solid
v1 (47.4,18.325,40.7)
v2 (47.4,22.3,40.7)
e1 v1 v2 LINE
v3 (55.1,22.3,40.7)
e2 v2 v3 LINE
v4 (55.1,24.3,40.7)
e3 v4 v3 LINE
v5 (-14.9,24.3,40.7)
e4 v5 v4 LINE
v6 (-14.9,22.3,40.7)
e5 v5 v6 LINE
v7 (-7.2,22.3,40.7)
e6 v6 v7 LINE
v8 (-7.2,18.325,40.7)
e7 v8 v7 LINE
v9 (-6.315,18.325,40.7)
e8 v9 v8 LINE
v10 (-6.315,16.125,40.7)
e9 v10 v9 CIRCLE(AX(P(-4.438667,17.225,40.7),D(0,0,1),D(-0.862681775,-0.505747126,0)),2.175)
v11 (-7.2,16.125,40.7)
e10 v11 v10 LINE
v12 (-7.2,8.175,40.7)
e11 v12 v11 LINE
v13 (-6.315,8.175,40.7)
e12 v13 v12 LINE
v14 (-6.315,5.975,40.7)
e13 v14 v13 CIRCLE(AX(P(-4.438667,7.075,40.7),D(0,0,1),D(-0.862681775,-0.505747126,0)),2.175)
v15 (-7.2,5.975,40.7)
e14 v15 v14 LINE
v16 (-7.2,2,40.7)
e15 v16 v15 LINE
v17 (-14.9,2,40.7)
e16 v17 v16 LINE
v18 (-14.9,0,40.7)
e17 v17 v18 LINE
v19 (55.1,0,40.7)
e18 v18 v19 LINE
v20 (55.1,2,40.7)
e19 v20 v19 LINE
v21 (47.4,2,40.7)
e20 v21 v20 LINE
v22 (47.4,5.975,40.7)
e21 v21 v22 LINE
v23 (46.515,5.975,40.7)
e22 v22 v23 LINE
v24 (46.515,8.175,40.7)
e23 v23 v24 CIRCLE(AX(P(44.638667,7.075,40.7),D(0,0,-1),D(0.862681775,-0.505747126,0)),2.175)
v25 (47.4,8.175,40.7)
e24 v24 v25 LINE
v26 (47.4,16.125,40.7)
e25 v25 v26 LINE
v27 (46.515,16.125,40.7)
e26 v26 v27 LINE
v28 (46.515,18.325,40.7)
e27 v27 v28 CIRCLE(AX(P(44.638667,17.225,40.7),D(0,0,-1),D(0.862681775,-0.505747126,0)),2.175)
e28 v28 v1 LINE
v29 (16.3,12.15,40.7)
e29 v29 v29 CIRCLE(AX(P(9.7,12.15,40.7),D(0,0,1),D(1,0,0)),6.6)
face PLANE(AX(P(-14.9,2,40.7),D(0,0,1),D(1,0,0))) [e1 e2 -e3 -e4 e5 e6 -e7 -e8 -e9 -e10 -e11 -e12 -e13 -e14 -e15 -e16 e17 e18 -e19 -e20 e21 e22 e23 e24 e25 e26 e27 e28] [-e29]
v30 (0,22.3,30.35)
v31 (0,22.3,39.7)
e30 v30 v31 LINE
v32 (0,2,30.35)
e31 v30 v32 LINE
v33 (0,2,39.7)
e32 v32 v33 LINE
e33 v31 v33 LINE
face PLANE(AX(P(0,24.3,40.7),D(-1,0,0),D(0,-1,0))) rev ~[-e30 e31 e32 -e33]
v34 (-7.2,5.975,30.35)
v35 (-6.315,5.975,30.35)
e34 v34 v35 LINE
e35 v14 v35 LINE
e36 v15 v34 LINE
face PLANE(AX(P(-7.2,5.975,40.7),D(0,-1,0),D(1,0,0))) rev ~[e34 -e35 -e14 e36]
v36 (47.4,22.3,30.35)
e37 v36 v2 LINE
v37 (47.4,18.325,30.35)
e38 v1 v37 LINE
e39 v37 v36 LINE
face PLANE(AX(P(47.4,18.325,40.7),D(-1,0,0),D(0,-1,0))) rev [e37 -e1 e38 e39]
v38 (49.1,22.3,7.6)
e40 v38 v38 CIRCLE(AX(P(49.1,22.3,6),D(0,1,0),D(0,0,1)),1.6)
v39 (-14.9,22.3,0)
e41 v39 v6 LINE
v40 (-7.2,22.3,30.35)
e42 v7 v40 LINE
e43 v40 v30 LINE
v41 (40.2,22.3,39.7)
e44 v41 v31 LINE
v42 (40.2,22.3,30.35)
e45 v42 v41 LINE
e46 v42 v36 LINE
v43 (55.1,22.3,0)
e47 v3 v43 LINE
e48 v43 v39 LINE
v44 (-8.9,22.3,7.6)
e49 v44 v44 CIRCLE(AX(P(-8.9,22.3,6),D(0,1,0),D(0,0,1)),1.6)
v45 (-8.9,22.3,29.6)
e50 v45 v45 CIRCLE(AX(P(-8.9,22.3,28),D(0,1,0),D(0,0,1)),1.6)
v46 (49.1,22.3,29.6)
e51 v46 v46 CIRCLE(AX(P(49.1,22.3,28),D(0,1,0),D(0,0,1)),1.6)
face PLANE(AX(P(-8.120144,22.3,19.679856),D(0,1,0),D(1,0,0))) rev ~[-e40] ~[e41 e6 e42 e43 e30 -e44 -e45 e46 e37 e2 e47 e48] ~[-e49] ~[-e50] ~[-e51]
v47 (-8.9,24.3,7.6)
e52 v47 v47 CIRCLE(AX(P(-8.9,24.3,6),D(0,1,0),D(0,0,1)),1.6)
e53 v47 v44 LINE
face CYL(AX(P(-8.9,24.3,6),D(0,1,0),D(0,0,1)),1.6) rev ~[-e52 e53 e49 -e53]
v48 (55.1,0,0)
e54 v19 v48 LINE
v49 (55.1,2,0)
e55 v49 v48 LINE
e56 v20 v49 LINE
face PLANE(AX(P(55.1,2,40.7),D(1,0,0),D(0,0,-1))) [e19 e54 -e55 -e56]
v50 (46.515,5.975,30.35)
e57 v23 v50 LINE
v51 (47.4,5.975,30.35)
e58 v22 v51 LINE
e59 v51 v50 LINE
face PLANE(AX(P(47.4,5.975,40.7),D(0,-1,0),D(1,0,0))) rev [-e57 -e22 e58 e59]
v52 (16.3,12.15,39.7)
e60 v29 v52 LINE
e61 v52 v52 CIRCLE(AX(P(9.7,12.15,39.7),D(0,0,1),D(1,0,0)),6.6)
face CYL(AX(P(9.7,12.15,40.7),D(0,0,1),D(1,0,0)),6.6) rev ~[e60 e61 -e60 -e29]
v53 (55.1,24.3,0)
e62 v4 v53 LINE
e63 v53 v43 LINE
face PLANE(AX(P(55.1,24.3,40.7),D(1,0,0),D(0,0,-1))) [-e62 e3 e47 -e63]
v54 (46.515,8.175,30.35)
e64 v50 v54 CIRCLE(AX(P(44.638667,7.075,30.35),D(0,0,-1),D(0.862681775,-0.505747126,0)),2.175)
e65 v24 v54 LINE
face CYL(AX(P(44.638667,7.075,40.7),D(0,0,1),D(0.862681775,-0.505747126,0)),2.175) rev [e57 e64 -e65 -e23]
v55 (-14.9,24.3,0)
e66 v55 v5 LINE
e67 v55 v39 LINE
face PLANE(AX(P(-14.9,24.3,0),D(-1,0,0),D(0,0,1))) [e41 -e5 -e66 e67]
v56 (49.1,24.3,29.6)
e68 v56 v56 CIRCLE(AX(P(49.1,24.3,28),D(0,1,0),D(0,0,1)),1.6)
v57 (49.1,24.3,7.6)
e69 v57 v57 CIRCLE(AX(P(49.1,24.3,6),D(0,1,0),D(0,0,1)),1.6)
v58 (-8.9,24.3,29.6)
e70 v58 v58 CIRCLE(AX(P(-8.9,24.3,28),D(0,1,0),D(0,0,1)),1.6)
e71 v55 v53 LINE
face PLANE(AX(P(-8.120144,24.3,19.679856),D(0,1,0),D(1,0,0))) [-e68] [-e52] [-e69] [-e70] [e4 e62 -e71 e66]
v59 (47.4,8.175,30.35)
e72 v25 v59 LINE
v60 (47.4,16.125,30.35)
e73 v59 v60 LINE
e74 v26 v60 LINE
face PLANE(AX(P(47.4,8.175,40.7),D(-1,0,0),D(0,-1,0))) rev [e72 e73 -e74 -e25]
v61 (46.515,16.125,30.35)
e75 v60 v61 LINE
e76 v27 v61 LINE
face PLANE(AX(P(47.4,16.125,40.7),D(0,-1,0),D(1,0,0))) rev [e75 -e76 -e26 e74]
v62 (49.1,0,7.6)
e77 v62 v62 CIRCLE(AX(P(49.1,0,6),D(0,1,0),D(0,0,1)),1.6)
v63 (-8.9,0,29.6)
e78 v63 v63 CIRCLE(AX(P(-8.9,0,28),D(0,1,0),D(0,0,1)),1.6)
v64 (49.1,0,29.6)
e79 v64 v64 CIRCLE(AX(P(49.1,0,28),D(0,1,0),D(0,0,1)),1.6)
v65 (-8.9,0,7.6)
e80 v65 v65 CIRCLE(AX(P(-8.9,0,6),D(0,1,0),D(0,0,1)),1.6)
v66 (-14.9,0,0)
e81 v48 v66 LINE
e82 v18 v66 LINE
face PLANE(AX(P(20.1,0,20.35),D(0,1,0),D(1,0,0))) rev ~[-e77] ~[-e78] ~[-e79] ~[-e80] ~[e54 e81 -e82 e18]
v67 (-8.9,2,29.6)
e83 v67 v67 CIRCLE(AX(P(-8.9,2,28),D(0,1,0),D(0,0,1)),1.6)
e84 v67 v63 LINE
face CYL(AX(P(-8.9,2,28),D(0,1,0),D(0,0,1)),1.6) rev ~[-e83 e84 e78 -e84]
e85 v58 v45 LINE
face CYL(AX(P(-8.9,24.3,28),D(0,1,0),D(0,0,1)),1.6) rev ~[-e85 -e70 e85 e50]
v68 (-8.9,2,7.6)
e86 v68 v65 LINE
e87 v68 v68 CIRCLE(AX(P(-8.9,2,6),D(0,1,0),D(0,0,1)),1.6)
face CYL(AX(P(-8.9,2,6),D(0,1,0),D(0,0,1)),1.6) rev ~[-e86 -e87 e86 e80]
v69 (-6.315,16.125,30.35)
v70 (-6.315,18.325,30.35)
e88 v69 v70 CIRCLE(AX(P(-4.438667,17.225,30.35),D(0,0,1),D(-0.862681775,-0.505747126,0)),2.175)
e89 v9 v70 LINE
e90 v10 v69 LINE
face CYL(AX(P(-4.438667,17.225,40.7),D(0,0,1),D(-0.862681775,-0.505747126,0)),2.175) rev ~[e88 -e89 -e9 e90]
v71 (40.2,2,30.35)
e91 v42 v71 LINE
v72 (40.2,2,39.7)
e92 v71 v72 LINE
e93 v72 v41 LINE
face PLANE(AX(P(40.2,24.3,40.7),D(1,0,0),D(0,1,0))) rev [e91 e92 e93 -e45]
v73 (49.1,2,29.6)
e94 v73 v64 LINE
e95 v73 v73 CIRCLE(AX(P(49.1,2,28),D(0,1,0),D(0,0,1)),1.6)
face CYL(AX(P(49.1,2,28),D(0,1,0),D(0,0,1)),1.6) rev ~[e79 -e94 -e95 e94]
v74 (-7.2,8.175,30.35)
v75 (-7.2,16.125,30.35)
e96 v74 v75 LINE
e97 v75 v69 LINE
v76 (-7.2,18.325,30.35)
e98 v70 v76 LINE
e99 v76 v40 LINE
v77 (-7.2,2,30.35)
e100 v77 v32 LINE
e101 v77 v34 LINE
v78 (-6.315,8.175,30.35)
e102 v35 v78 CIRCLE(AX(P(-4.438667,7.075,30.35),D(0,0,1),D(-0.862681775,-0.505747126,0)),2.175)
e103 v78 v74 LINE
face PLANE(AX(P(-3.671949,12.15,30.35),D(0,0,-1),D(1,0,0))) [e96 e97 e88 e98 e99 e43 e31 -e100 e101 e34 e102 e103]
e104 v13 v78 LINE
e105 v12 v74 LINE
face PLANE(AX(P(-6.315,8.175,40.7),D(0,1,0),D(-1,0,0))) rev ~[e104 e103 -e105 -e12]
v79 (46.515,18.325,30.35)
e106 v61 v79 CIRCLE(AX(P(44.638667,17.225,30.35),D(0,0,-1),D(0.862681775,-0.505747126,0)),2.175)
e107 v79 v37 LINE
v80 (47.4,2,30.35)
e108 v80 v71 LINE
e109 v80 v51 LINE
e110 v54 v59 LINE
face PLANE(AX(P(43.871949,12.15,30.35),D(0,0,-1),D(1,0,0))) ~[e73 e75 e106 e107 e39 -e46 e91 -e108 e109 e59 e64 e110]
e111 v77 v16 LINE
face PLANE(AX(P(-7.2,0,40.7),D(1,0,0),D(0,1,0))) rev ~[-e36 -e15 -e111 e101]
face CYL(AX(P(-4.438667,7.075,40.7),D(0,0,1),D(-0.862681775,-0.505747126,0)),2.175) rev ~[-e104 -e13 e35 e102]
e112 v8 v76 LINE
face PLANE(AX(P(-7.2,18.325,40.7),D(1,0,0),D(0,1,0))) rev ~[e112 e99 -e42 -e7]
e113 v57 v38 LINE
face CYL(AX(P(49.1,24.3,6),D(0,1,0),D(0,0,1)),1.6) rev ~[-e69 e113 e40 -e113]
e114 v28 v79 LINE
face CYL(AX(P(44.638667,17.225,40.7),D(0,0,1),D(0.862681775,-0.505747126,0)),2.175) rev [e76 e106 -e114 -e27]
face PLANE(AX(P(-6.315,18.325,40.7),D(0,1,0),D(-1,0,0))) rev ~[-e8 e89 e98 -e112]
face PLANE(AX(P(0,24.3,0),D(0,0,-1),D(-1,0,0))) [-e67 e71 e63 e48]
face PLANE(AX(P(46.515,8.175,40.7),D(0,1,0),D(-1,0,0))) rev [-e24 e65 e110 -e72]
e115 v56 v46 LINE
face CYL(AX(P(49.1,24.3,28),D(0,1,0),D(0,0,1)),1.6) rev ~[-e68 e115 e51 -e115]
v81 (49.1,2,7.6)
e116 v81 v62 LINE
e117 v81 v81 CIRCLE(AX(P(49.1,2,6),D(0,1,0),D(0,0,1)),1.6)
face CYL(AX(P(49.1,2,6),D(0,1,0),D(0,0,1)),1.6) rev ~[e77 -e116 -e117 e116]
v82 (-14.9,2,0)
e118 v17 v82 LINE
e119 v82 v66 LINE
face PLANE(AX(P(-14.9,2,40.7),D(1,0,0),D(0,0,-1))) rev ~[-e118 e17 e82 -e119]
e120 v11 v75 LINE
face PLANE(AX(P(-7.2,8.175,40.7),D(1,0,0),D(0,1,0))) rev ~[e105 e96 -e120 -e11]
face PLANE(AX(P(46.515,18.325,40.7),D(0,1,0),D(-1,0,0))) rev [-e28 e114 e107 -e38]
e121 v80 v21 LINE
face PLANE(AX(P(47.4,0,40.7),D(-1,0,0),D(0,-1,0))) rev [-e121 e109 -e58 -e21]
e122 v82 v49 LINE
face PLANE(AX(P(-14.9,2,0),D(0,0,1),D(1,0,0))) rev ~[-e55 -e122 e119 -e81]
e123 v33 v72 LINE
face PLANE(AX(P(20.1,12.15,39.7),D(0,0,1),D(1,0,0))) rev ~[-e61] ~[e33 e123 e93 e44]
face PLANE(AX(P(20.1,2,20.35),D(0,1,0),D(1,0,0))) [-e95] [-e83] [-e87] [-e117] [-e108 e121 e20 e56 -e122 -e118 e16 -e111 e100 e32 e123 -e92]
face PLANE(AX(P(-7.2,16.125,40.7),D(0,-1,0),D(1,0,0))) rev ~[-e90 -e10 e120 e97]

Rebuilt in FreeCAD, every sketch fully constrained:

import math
import FreeCAD as App
import Part
import Sketcher
from FreeCAD import Vector
Q = App.Units.Quantity


def add_polygon(sketch, points):
    """Adds a closed chain of lines whose ends are joined by coincident constraints."""
    first, n = sketch.GeometryCount, len(points)
    for a, b in zip(points, points[1:] + points[:1]):
        sketch.addGeometry(Part.LineSegment(App.Vector(*a, 0), App.Vector(*b, 0)), False)
    for i in range(n):
        sketch.addConstraint(Sketcher.Constraint("Coincident", first + i, 2, first + (i + 1) % n, 1))

doc = App.newDocument("Part")
body = doc.addObject("PartDesign::Body", "Body")

# Sketch on XY plane
sketch1 = body.newObject("Sketcher::SketchObject", "Sketch")
sketch1.AttachmentSupport = (doc.getObject("XY_Plane"), [""])
sketch1.MapMode = "FlatFace"
add_polygon(sketch1, [(0, 24.3), (0, 22.3), (40.2, 22.3), (40.2, 24.3)])  # lines 0-3
sketch1.addConstraint(Sketcher.Constraint("Vertical", 0))
sketch1.addConstraint(Sketcher.Constraint("Horizontal", 1))
sketch1.addConstraint(Sketcher.Constraint("Vertical", 2))
sketch1.addConstraint(Sketcher.Constraint("Horizontal", 3))
sketch1.addConstraint(Sketcher.Constraint("PointOnObject", 0, 2, -2))
sketch1.addConstraint(Sketcher.Constraint("DistanceY", 0, 2, 0, 1, Q("2 mm")))
sketch1.addConstraint(Sketcher.Constraint("DistanceX", 1, 1, 1, 2, Q("40.2 mm")))
sketch1.addConstraint(Sketcher.Constraint("DistanceY", -1, 1, 0, 2, Q("22.3 mm")))
pad1 = body.newObject("PartDesign::Pad", "Pad")
pad1.Profile = sketch1
pad1.Length = 40.7
body2 = doc.addObject("PartDesign::Body", "Body001")

# Sketch on XY plane
sketch2 = body2.newObject("Sketcher::SketchObject", "Sketch001")
sketch2.AttachmentSupport = (doc.getObject("XY_Plane001"), [""])
sketch2.MapMode = "FlatFace"
add_polygon(sketch2, [(0, 2), (0, 0), (40.2, 0), (40.2, 2)])  # lines 0-3
sketch2.addConstraint(Sketcher.Constraint("Vertical", 0))
sketch2.addConstraint(Sketcher.Constraint("Horizontal", 1))
sketch2.addConstraint(Sketcher.Constraint("Vertical", 2))
sketch2.addConstraint(Sketcher.Constraint("Horizontal", 3))
sketch2.addConstraint(Sketcher.Constraint("Coincident", 0, 2, -1, 1))
sketch2.addConstraint(Sketcher.Constraint("DistanceY", 0, 2, 0, 1, Q("2 mm")))
sketch2.addConstraint(Sketcher.Constraint("DistanceX", 1, 1, 1, 2, Q("40.2 mm")))
pad2 = body2.newObject("PartDesign::Pad", "Pad001")
pad2.Profile = sketch2
pad2.Length = 40.7
body.AllowCompound = True
doc.recompute()

boolean = body.newObject("PartDesign::Boolean", "Boolean")
boolean.Type = "Fuse"
boolean.addObjects([body2])

# Sketch on XY plane
sketch3 = body.newObject("Sketcher::SketchObject", "Sketch002")
sketch3.AttachmentSupport = (doc.getObject("XY_Plane"), [""])
sketch3.MapMode = "FlatFace"
sketch3.AttachmentOffset = App.Placement(Vector(0, 0, 40.7), App.Rotation())
add_polygon(sketch3, [(0, 22.3), (0, 2), (40.2, 2), (40.2, 22.3)])  # lines 0-3
sketch3.addGeometry(Part.Circle(Vector(9.7, 12.15, 0), Vector(0, 0, 1), 6.6), False)  # 4
sketch3.addConstraint(Sketcher.Constraint("Vertical", 0))
sketch3.addConstraint(Sketcher.Constraint("Horizontal", 1))
sketch3.addConstraint(Sketcher.Constraint("Vertical", 2))
sketch3.addConstraint(Sketcher.Constraint("Horizontal", 3))
sketch3.addConstraint(Sketcher.Constraint("PointOnObject", 0, 2, -2))
sketch3.addConstraint(Sketcher.Constraint("Diameter", 4, Q("13.2 mm")))
sketch3.addConstraint(Sketcher.Constraint("DistanceX", 1, 1, 1, 2, Q("40.2 mm")))
sketch3.addConstraint(Sketcher.Constraint("DistanceY", 0, 2, 0, 1, Q("20.3 mm")))
sketch3.addConstraint(Sketcher.Constraint("DistanceY", -1, 1, 0, 2, Q("2 mm")))
sketch3.addConstraint(Sketcher.Constraint("DistanceX", -1, 1, 4, 3, Q("9.7 mm")))
sketch3.addConstraint(Sketcher.Constraint("DistanceY", -1, 1, 4, 3, Q("12.15 mm")))
pad3 = body.newObject("PartDesign::Pad", "Pad002")
pad3.Profile = sketch3
pad3.Length = 1
pad3.Reversed = True

# Sketch on XY plane
sketch4 = body.newObject("Sketcher::SketchObject", "Sketch003")
sketch4.AttachmentSupport = (doc.getObject("XY_Plane"), [""])
sketch4.MapMode = "FlatFace"
sketch4.AttachmentOffset = App.Placement(Vector(0, 0, 40.7), App.Rotation())
sketch4.addGeometry(Part.ArcOfCircle(Part.Circle(Vector(-4.438667, 7.075, 0), Vector(0, 0, 1), 2.175), math.radians(-149.619039), math.radians(149.619039)), False)
sketch4.addGeometry(Part.LineSegment(Vector(-6.315, 8.175, 0), Vector(-7.2, 8.175, 0)), False)
sketch4.addGeometry(Part.LineSegment(Vector(-7.2, 8.175, 0), Vector(-7.2, 16.125, 0)), False)
sketch4.addGeometry(Part.LineSegment(Vector(-7.2, 16.125, 0), Vector(-6.315, 16.125, 0)), False)
sketch4.addGeometry(Part.ArcOfCircle(Part.Circle(Vector(-4.438667, 17.225, 0), Vector(0, 0, 1), 2.175), math.radians(-149.619039), math.radians(149.619039)), False)
sketch4.addGeometry(Part.LineSegment(Vector(-6.315, 18.325, 0), Vector(-7.2, 18.325, 0)), False)
sketch4.addGeometry(Part.LineSegment(Vector(-7.2, 18.325, 0), Vector(-7.2, 24.3, 0)), False)
sketch4.addGeometry(Part.LineSegment(Vector(-7.2, 24.3, 0), Vector(0, 24.3, 0)), False)
sketch4.addGeometry(Part.LineSegment(Vector(0, 24.3, 0), Vector(0, 0, 0)), False)
sketch4.addGeometry(Part.LineSegment(Vector(0, 0, 0), Vector(-7.2, 0, 0)), False)
sketch4.addGeometry(Part.LineSegment(Vector(-7.2, 0, 0), Vector(-7.2, 5.975, 0)), False)
sketch4.addGeometry(Part.LineSegment(Vector(-7.2, 5.975, 0), Vector(-6.315, 5.975, 0)), False)
sketch4.addConstraint(Sketcher.Constraint("Coincident", 0, 2, 1, 1))
sketch4.addConstraint(Sketcher.Constraint("Coincident", 1, 2, 2, 1))
sketch4.addConstraint(Sketcher.Constraint("Coincident", 2, 2, 3, 1))
sketch4.addConstraint(Sketcher.Constraint("Coincident", 3, 2, 4, 1))
sketch4.addConstraint(Sketcher.Constraint("Coincident", 4, 2, 5, 1))
sketch4.addConstraint(Sketcher.Constraint("Coincident", 5, 2, 6, 1))
sketch4.addConstraint(Sketcher.Constraint("Coincident", 6, 2, 7, 1))
sketch4.addConstraint(Sketcher.Constraint("Coincident", 7, 2, 8, 1))
sketch4.addConstraint(Sketcher.Constraint("Coincident", 8, 2, 9, 1))
sketch4.addConstraint(Sketcher.Constraint("Coincident", 9, 2, 10, 1))
sketch4.addConstraint(Sketcher.Constraint("Coincident", 10, 2, 11, 1))
sketch4.addConstraint(Sketcher.Constraint("Coincident", 11, 2, 0, 1))
sketch4.addConstraint(Sketcher.Constraint("Horizontal", 1))
sketch4.addConstraint(Sketcher.Constraint("Vertical", 2))
sketch4.addConstraint(Sketcher.Constraint("Horizontal", 3))
sketch4.addConstraint(Sketcher.Constraint("Horizontal", 5))
sketch4.addConstraint(Sketcher.Constraint("Vertical", 6))
sketch4.addConstraint(Sketcher.Constraint("Horizontal", 7))
sketch4.addConstraint(Sketcher.Constraint("Vertical", 8))
sketch4.addConstraint(Sketcher.Constraint("Horizontal", 9))
sketch4.addConstraint(Sketcher.Constraint("Vertical", 10))
sketch4.addConstraint(Sketcher.Constraint("Horizontal", 11))
sketch4.addConstraint(Sketcher.Constraint("Coincident", 8, 2, -1, 1))
sketch4.addConstraint(Sketcher.Constraint("Equal", 0, 4))
sketch4.addConstraint(Sketcher.Constraint("Vertical", 0, 3, 4, 3))
sketch4.addConstraint(Sketcher.Constraint("Vertical", 0, 2, 3, 2))
sketch4.addConstraint(Sketcher.Constraint("Vertical", 3, 2, 4, 2))
sketch4.addConstraint(Sketcher.Constraint("Vertical", 2, 2, 5, 2))
sketch4.addConstraint(Sketcher.Constraint("Vertical", 6, 2, 9, 2))
sketch4.addConstraint(Sketcher.Constraint("Vertical", 4, 2, 11, 2))
sketch4.addConstraint(Sketcher.Constraint("Equal", 6, 10))
sketch4.addConstraint(Sketcher.Constraint("DistanceX", 7, 1, 7, 2, Q("7.2 mm")))
sketch4.addConstraint(Sketcher.Constraint("DistanceY", 8, 2, 8, 1, Q("24.3 mm")))
sketch4.addConstraint(Sketcher.Constraint("Radius", 0, Q("2.175 mm")))
sketch4.addConstraint(Sketcher.Constraint("DistanceY", 2, 1, 2, 2, Q("7.95 mm")))
sketch4.addConstraint(Sketcher.Constraint("DistanceY", 0, 3, 0, 2, Q("1.1 mm")))
sketch4.addConstraint(Sketcher.Constraint("DistanceX", 1, 2, 1, 1, Q("0.885 mm")))
pad4 = body.newObject("PartDesign::Pad", "Pad003")
pad4.Profile = sketch4
pad4.Length = 10.35
pad4.Reversed = True
doc.recompute()

datumplane = body.newObject("PartDesign::Plane", "DatumPlane")
datumplane.AttachmentSupport = (doc.getObject("YZ_Plane"), [""])
datumplane.MapMode = "FlatFace"
datumplane.AttachmentOffset = App.Placement(Vector(0, 0, 20.1), App.Rotation())
mirrored = body.newObject("PartDesign::Mirrored", "Mirrored")
mirrored.Originals = [pad4]
mirrored.MirrorPlane = (datumplane, [""])
body.Tip = mirrored

# Sketch on XZ plane
sketch5 = body.newObject("Sketcher::SketchObject", "Sketch004")
sketch5.AttachmentSupport = (doc.getObject("XZ_Plane"), [""])
sketch5.MapMode = "FlatFace"
sketch5.AttachmentOffset = App.Placement(Vector(0, 0, -24.3), App.Rotation())
add_polygon(sketch5, [(0, 0), (-14.9, 0), (-14.9, 40.7), (-7.2, 40.7), (-7.2, 30.35), (0, 30.35)])  # lines 0-5
sketch5.addGeometry(Part.Circle(Vector(-8.9, 28, 0), Vector(0, 0, 1), 1.6), False)  # 6
sketch5.addGeometry(Part.Circle(Vector(-8.9, 6, 0), Vector(0, 0, 1), 1.6), False)  # 7
add_polygon(sketch5, [(55.1, 0), (40.2, 0), (40.2, 30.35), (47.4, 30.35), (47.4, 40.7), (55.1, 40.7)])  # lines 8-13
sketch5.addGeometry(Part.Circle(Vector(49.1, 28, 0), Vector(0, 0, 1), 1.6), False)  # 14
sketch5.addGeometry(Part.Circle(Vector(49.1, 6, 0), Vector(0, 0, 1), 1.6), False)  # 15
sketch5.addConstraint(Sketcher.Constraint("Horizontal", 0))
sketch5.addConstraint(Sketcher.Constraint("Vertical", 1))
sketch5.addConstraint(Sketcher.Constraint("Horizontal", 2))
sketch5.addConstraint(Sketcher.Constraint("Vertical", 3))
sketch5.addConstraint(Sketcher.Constraint("Horizontal", 4))
sketch5.addConstraint(Sketcher.Constraint("Vertical", 5))
sketch5.addConstraint(Sketcher.Constraint("Horizontal", 8))
sketch5.addConstraint(Sketcher.Constraint("Vertical", 9))
sketch5.addConstraint(Sketcher.Constraint("Horizontal", 10))
sketch5.addConstraint(Sketcher.Constraint("Vertical", 11))
sketch5.addConstraint(Sketcher.Constraint("Horizontal", 12))
sketch5.addConstraint(Sketcher.Constraint("Vertical", 13))
sketch5.addConstraint(Sketcher.Constraint("Coincident", 5, 2, -1, 1))
sketch5.addConstraint(Sketcher.Constraint("Equal", 6, 7))
sketch5.addConstraint(Sketcher.Constraint("Equal", 7, 14))
sketch5.addConstraint(Sketcher.Constraint("Equal", 14, 15))
sketch5.addConstraint(Sketcher.Constraint("PointOnObject", 8, 2, -1))
sketch5.addConstraint(Sketcher.Constraint("Horizontal", 6, 3, 14, 3))
sketch5.addConstraint(Sketcher.Constraint("Horizontal", 7, 3, 15, 3))
sketch5.addConstraint(Sketcher.Constraint("Horizontal", 4, 2, 9, 2))
sketch5.addConstraint(Sketcher.Constraint("Horizontal", 2, 2, 11, 2))
sketch5.addConstraint(Sketcher.Constraint("Vertical", 6, 3, 7, 3))
sketch5.addConstraint(Sketcher.Constraint("Vertical", 14, 3, 15, 3))
sketch5.addConstraint(Sketcher.Constraint("Equal", 0, 8))
sketch5.addConstraint(Sketcher.Constraint("Equal", 4, 10))
sketch5.addConstraint(Sketcher.Constraint("Diameter", 6, Q("3.2 mm")))
sketch5.addConstraint(Sketcher.Constraint("DistanceX", 0, 2, 0, 1, Q("14.9 mm")))
sketch5.addConstraint(Sketcher.Constraint("DistanceX", 2, 1, 2, 2, Q("7.7 mm")))
sketch5.addConstraint(Sketcher.Constraint("DistanceY", 1, 1, 1, 2, Q("40.7 mm")))
sketch5.addConstraint(Sketcher.Constraint("DistanceY", -1, 1, 6, 3, Q("28 mm")))
sketch5.addConstraint(Sketcher.Constraint("DistanceY", -1, 1, 7, 3, Q("6 mm")))
sketch5.addConstraint(Sketcher.Constraint("DistanceX", 6, 3, 14, 3, Q("58 mm")))
sketch5.addConstraint(Sketcher.Constraint("DistanceX", 0, 2, 7, 3, Q("6 mm")))
sketch5.addConstraint(Sketcher.Constraint("DistanceX", 14, 3, 12, 2, Q("6 mm")))
sketch5.addConstraint(Sketcher.Constraint("DistanceY", 3, 2, 3, 1, Q("10.35 mm")))
pad5 = body.newObject("PartDesign::Pad", "Pad004")
pad5.Profile = sketch5
pad5.Length = 2

# Sketch on XZ plane
sketch6 = body.newObject("Sketcher::SketchObject", "Sketch005")
sketch6.AttachmentSupport = (doc.getObject("XZ_Plane"), [""])
sketch6.MapMode = "FlatFace"
sketch6.AttachmentOffset = App.Placement(Vector(0, 0, -2), App.Rotation())
add_polygon(sketch6, [(-14.9, 0), (-14.9, 40.7), (55.1, 40.7), (55.1, 0)])  # lines 0-3
sketch6.addGeometry(Part.Circle(Vector(-8.9, 28, 0), Vector(0, 0, 1), 1.6), False)  # 4
sketch6.addGeometry(Part.Circle(Vector(49.1, 28, 0), Vector(0, 0, 1), 1.6), False)  # 5
sketch6.addGeometry(Part.Circle(Vector(-8.9, 6, 0), Vector(0, 0, 1), 1.6), False)  # 6
sketch6.addGeometry(Part.Circle(Vector(49.1, 6, 0), Vector(0, 0, 1), 1.6), False)  # 7
sketch6.addConstraint(Sketcher.Constraint("Vertical", 0))
sketch6.addConstraint(Sketcher.Constraint("Horizontal", 1))
sketch6.addConstraint(Sketcher.Constraint("Vertical", 2))
sketch6.addConstraint(Sketcher.Constraint("Horizontal", 3))
sketch6.addConstraint(Sketcher.Constraint("Equal", 4, 5))
sketch6.addConstraint(Sketcher.Constraint("Equal", 5, 6))
sketch6.addConstraint(Sketcher.Constraint("Equal", 6, 7))
sketch6.addConstraint(Sketcher.Constraint("PointOnObject", 2, 2, -1))
sketch6.addConstraint(Sketcher.Constraint("Horizontal", 4, 3, 5, 3))
sketch6.addConstraint(Sketcher.Constraint("Horizontal", 6, 3, 7, 3))
sketch6.addConstraint(Sketcher.Constraint("Vertical", 4, 3, 6, 3))
sketch6.addConstraint(Sketcher.Constraint("Vertical", 5, 3, 7, 3))
sketch6.addConstraint(Sketcher.Constraint("Diameter", 4, Q("3.2 mm")))
sketch6.addConstraint(Sketcher.Constraint("DistanceX", 1, 1, 1, 2, Q("70 mm")))
sketch6.addConstraint(Sketcher.Constraint("DistanceY", 0, 1, 0, 2, Q("40.7 mm")))
sketch6.addConstraint(Sketcher.Constraint("DistanceY", -1, 1, 4, 3, Q("28 mm")))
sketch6.addConstraint(Sketcher.Constraint("DistanceY", -1, 1, 6, 3, Q("6 mm")))
sketch6.addConstraint(Sketcher.Constraint("DistanceX", 4, 3, 5, 3, Q("58 mm")))
sketch6.addConstraint(Sketcher.Constraint("DistanceX", 0, 2, 4, 3, Q("6 mm")))
sketch6.addConstraint(Sketcher.Constraint("DistanceX", 4, 3, -1, 1, Q("8.9 mm")))
pad6 = body.newObject("PartDesign::Pad", "Pad005")
pad6.Profile = sketch6
pad6.Length = 2

doc.recompute()
